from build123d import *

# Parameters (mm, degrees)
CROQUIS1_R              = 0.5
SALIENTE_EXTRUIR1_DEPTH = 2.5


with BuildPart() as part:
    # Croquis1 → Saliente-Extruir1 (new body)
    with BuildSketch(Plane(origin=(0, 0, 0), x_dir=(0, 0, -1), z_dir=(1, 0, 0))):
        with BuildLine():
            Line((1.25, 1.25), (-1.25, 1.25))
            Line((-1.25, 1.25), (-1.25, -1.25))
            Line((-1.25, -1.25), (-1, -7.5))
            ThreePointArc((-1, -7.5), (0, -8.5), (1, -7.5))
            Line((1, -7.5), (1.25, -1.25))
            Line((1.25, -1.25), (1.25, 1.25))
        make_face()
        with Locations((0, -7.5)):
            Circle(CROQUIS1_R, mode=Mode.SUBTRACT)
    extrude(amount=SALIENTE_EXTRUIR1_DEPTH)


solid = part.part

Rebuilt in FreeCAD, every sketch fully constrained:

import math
import FreeCAD as App
import Part
import Sketcher
from FreeCAD import Vector

doc = App.newDocument("Part")
body = doc.addObject("PartDesign::Body", "Body")

# Sketch on YZ plane
sketch1 = body.newObject("Sketcher::SketchObject", "Sketch")
sketch1.AttachmentSupport = (doc.getObject("YZ_Plane"), [""])
sketch1.MapMode = "FlatFace"
sketch1.addGeometry([
    Part.LineSegment(Vector(1.2, -1.2, 0), Vector(1.2, 1.2, 0)),  # 0
    Part.LineSegment(Vector(1.2, 1.2, 0), Vector(-1.2, 1.2, 0)),  # 1
    Part.LineSegment(Vector(-1.2, 1.2, 0), Vector(-7.5, 1, 0)),  # 2
    Part.ArcOfCircle(Part.Circle(Vector(-7.5, 0, 0), Vector(0, 0, 1), 1), math.radians(90), math.radians(270)),  # 3
    Part.LineSegment(Vector(-7.5, -1, 0), Vector(-1.2, -1.2, 0)),  # 4
    Part.LineSegment(Vector(-1.2, -1.2, 0), Vector(1.2, -1.2, 0)),  # 5
    Part.Circle(Vector(-7.5, 0, 0), Vector(0, 0, 1), 0.5),  # 6
], False)
sketch1.addConstraint([
    Sketcher.Constraint("Coincident", 0, 2, 1, 1),
    Sketcher.Constraint("Coincident", 1, 2, 2, 1),
    Sketcher.Constraint("Coincident", 2, 2, 3, 1),
    Sketcher.Constraint("Coincident", 3, 2, 4, 1),
    Sketcher.Constraint("Coincident", 4, 2, 5, 1),
    Sketcher.Constraint("Coincident", 5, 2, 0, 1),
    Sketcher.Constraint("Vertical", 0),
    Sketcher.Constraint("Horizontal", 1),
    Sketcher.Constraint("Horizontal", 5),
    Sketcher.Constraint("Coincident", 6, 3, 3, 3),
    Sketcher.Constraint("Symmetric", 0, 2, 4, 2, -1, 1),
    Sketcher.Constraint("Symmetric", 2, 2, 3, 2, -1),
    Sketcher.Constraint("Vertical", 6, 3, 2, 2),
    Sketcher.Constraint("Vertical", 1, 2, 4, 2),
    Sketcher.Constraint("Equal", 5, 0),
    Sketcher.Constraint("Diameter", 6, 1.0),
    Sketcher.Constraint("Radius", 3, 1.0),
    Sketcher.Constraint("DistanceX", 1, 2, 1, 1, 2.5),
    Sketcher.Constraint("DistanceX", 3, 3, -1, 1, 7.5),
])
pad1 = body.newObject("PartDesign::Pad", "Pad")
pad1.Profile = sketch1
pad1.Length = 2.5

doc.recompute()
